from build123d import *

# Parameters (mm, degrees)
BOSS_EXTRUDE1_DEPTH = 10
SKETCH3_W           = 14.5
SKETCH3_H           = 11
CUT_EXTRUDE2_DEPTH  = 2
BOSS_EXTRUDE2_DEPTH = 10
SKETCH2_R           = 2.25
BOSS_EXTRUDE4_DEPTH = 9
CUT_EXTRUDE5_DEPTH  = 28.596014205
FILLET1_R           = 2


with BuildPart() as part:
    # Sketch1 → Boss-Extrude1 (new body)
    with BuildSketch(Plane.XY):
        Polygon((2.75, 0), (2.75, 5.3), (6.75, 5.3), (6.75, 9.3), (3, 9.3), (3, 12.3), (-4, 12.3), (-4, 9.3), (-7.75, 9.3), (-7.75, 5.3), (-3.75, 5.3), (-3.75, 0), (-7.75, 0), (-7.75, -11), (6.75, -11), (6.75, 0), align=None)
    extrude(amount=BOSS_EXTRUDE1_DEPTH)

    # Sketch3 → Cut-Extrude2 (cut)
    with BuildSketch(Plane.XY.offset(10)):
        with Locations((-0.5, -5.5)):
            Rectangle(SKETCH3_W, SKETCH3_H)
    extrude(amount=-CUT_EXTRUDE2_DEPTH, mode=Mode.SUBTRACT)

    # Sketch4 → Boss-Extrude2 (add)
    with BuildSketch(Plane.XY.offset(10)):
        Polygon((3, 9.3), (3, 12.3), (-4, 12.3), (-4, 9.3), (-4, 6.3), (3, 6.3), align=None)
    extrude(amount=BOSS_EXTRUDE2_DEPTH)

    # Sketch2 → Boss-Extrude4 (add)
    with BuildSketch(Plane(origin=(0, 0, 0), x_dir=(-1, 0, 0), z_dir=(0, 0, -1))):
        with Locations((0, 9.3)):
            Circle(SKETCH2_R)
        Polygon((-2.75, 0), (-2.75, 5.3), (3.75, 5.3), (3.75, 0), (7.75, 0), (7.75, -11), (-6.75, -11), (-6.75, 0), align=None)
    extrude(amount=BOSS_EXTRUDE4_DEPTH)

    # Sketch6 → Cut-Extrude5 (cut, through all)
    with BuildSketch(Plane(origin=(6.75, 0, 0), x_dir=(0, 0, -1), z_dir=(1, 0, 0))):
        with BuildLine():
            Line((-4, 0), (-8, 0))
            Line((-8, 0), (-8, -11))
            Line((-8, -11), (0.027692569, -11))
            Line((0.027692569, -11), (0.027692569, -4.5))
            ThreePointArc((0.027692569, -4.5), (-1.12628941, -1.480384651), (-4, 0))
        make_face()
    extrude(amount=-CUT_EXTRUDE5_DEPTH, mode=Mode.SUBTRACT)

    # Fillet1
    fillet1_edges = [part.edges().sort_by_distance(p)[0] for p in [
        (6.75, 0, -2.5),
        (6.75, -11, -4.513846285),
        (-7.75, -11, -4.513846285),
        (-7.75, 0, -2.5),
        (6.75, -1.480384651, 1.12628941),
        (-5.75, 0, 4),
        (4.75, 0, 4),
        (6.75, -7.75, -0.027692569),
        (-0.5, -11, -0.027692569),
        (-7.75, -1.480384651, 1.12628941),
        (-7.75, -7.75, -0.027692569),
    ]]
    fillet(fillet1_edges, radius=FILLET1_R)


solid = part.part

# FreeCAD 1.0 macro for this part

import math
import FreeCAD as App
import Part
import Sketcher
from FreeCAD import Vector


def edges_at(feature, points):
    """Names of the edges that pass closest to the given points."""
    edges = feature.Shape.Edges
    near = lambda p: min(range(len(edges)), key=lambda i: edges[i].distToShape(Part.Vertex(*p))[0])
    return sorted({f"Edge{near(p) + 1}" for p in points})

doc = App.newDocument("Part")
body = doc.addObject("PartDesign::Body", "Body")

# Sketch on XY plane
sketch1 = body.newObject("Sketcher::SketchObject", "Sketch")
sketch1.AttachmentSupport = (doc.getObject("XY_Plane"), [""])
sketch1.MapMode = "FlatFace"
sketch1.addGeometry(Part.LineSegment(Vector(2.8, 0, 0), Vector(2.8, 5.3, 0)), False)
sketch1.addGeometry(Part.LineSegment(Vector(2.8, 5.3, 0), Vector(6.8, 5.3, 0)), False)
sketch1.addGeometry(Part.LineSegment(Vector(6.8, 5.3, 0), Vector(6.8, 9.3, 0)), False)
sketch1.addGeometry(Part.LineSegment(Vector(6.8, 9.3, 0), Vector(3, 9.3, 0)), False)
sketch1.addGeometry(Part.LineSegment(Vector(3, 9.3, 0), Vector(3, 12.3, 0)), False)
sketch1.addGeometry(Part.LineSegment(Vector(3, 12.3, 0), Vector(-4, 12.3, 0)), False)
sketch1.addGeometry(Part.LineSegment(Vector(-4, 12.3, 0), Vector(-4, 9.3, 0)), False)
sketch1.addGeometry(Part.LineSegment(Vector(-4, 9.3, 0), Vector(-7.8, 9.3, 0)), False)
sketch1.addGeometry(Part.LineSegment(Vector(-7.8, 9.3, 0), Vector(-7.8, 5.3, 0)), False)
sketch1.addGeometry(Part.LineSegment(Vector(-7.8, 5.3, 0), Vector(-3.8, 5.3, 0)), False)
sketch1.addGeometry(Part.LineSegment(Vector(-3.8, 5.3, 0), Vector(-3.8, 0, 0)), False)
sketch1.addGeometry(Part.LineSegment(Vector(-3.8, 0, 0), Vector(-7.8, 0, 0)), False)
sketch1.addGeometry(Part.LineSegment(Vector(-7.8, 0, 0), Vector(-7.8, -11, 0)), False)
sketch1.addGeometry(Part.LineSegment(Vector(-7.8, -11, 0), Vector(6.8, -11, 0)), False)
sketch1.addGeometry(Part.LineSegment(Vector(6.8, -11, 0), Vector(6.8, 0, 0)), False)
sketch1.addGeometry(Part.LineSegment(Vector(6.8, 0, 0), Vector(2.8, 0, 0)), False)
sketch1.addConstraint(Sketcher.Constraint("Coincident", 0, 2, 1, 1))
sketch1.addConstraint(Sketcher.Constraint("Coincident", 1, 2, 2, 1))
sketch1.addConstraint(Sketcher.Constraint("Coincident", 2, 2, 3, 1))
sketch1.addConstraint(Sketcher.Constraint("Coincident", 3, 2, 4, 1))
sketch1.addConstraint(Sketcher.Constraint("Coincident", 4, 2, 5, 1))
sketch1.addConstraint(Sketcher.Constraint("Coincident", 5, 2, 6, 1))
sketch1.addConstraint(Sketcher.Constraint("Coincident", 6, 2, 7, 1))
sketch1.addConstraint(Sketcher.Constraint("Coincident", 7, 2, 8, 1))
sketch1.addConstraint(Sketcher.Constraint("Coincident", 8, 2, 9, 1))
sketch1.addConstraint(Sketcher.Constraint("Coincident", 9, 2, 10, 1))
sketch1.addConstraint(Sketcher.Constraint("Coincident", 10, 2, 11, 1))
sketch1.addConstraint(Sketcher.Constraint("Coincident", 11, 2, 12, 1))
sketch1.addConstraint(Sketcher.Constraint("Coincident", 12, 2, 13, 1))
sketch1.addConstraint(Sketcher.Constraint("Coincident", 13, 2, 14, 1))
sketch1.addConstraint(Sketcher.Constraint("Coincident", 14, 2, 15, 1))
sketch1.addConstraint(Sketcher.Constraint("Coincident", 15, 2, 0, 1))
sketch1.addConstraint(Sketcher.Constraint("Vertical", 0))
sketch1.addConstraint(Sketcher.Constraint("Horizontal", 1))
sketch1.addConstraint(Sketcher.Constraint("Vertical", 2))
sketch1.addConstraint(Sketcher.Constraint("Horizontal", 3))
sketch1.addConstraint(Sketcher.Constraint("Vertical", 4))
sketch1.addConstraint(Sketcher.Constraint("Horizontal", 5))
sketch1.addConstraint(Sketcher.Constraint("Vertical", 6))
sketch1.addConstraint(Sketcher.Constraint("Horizontal", 7))
sketch1.addConstraint(Sketcher.Constraint("Vertical", 8))
sketch1.addConstraint(Sketcher.Constraint("Horizontal", 9))
sketch1.addConstraint(Sketcher.Constraint("Vertical", 10))
sketch1.addConstraint(Sketcher.Constraint("Horizontal", 11))
sketch1.addConstraint(Sketcher.Constraint("Vertical", 12))
sketch1.addConstraint(Sketcher.Constraint("Horizontal", 13))
sketch1.addConstraint(Sketcher.Constraint("Vertical", 14))
sketch1.addConstraint(Sketcher.Constraint("Horizontal", 15))
sketch1.addConstraint(Sketcher.Constraint("PointOnObject", 10, 2, -1))
sketch1.addConstraint(Sketcher.Constraint("PointOnObject", 14, 2, -1))
sketch1.addConstraint(Sketcher.Constraint("Horizontal", 3, 2, 6, 2))
sketch1.addConstraint(Sketcher.Constraint("Horizontal", 1, 2, 8, 2))
sketch1.addConstraint(Sketcher.Constraint("Vertical", 8, 2, 11, 2))
sketch1.addConstraint(Sketcher.Constraint("Vertical", 2, 2, 13, 2))
sketch1.addConstraint(Sketcher.Constraint("Equal", 3, 7))
sketch1.addConstraint(Sketcher.Constraint("Equal", 1, 9))
sketch1.addConstraint(Sketcher.Constraint("Equal", 15, 2))
sketch1.addConstraint(Sketcher.Constraint("DistanceX", 1, 1, 1, 2, 4.0))
sketch1.addConstraint(Sketcher.Constraint("DistanceX", 5, 2, 5, 1, 7.0))
sketch1.addConstraint(Sketcher.Constraint("DistanceY", 4, 1, 4, 2, 3.0))
sketch1.addConstraint(Sketcher.Constraint("DistanceY", 12, 2, 12, 1, 11.0))
sketch1.addConstraint(Sketcher.Constraint("DistanceX", 13, 1, 13, 2, 14.5))
sketch1.addConstraint(Sketcher.Constraint("DistanceY", 0, 1, 0, 2, 5.3))
sketch1.addConstraint(Sketcher.Constraint("DistanceX", -1, 1, 3, 2, 3.0))
pad1 = body.newObject("PartDesign::Pad", "Pad")
pad1.Profile = sketch1
pad1.Length = 10

# Sketch on XY plane
sketch2 = body.newObject("Sketcher::SketchObject", "Sketch001")
sketch2.AttachmentSupport = (doc.getObject("XY_Plane"), [""])
sketch2.MapMode = "FlatFace"
sketch2.AttachmentOffset = App.Placement(Vector(0, 0, 10), App.Rotation())
sketch2.addGeometry(Part.LineSegment(Vector(-8, 0, 0), Vector(-8, -11, 0)), False)
sketch2.addGeometry(Part.LineSegment(Vector(-8, -11, 0), Vector(7, -11, 0)), False)
sketch2.addGeometry(Part.LineSegment(Vector(7, -11, 0), Vector(7, 0, 0)), False)
sketch2.addGeometry(Part.LineSegment(Vector(7, 0, 0), Vector(-8, 0, 0)), False)
sketch2.addConstraint(Sketcher.Constraint("Coincident", 0, 2, 1, 1))
sketch2.addConstraint(Sketcher.Constraint("Coincident", 1, 2, 2, 1))
sketch2.addConstraint(Sketcher.Constraint("Coincident", 2, 2, 3, 1))
sketch2.addConstraint(Sketcher.Constraint("Coincident", 3, 2, 0, 1))
sketch2.addConstraint(Sketcher.Constraint("Vertical", 0))
sketch2.addConstraint(Sketcher.Constraint("Horizontal", 1))
sketch2.addConstraint(Sketcher.Constraint("Vertical", 2))
sketch2.addConstraint(Sketcher.Constraint("Horizontal", 3))
sketch2.addConstraint(Sketcher.Constraint("PointOnObject", 2, 2, -1))
sketch2.addConstraint(Sketcher.Constraint("DistanceY", 0, 2, 0, 1, 11.0))
sketch2.addConstraint(Sketcher.Constraint("DistanceX", 1, 1, 1, 2, 14.5))
sketch2.addConstraint(Sketcher.Constraint("DistanceX", 0, 2, -1, 1, 7.75))
pocket1 = body.newObject("PartDesign::Pocket", "Pocket")
pocket1.Profile = sketch2
pocket1.Length = 2

# Sketch on XY plane
sketch3 = body.newObject("Sketcher::SketchObject", "Sketch002")
sketch3.AttachmentSupport = (doc.getObject("XY_Plane"), [""])
sketch3.MapMode = "FlatFace"
sketch3.AttachmentOffset = App.Placement(Vector(0, 0, 10), App.Rotation())
sketch3.addGeometry(Part.LineSegment(Vector(3, 12, 0), Vector(-4, 12, 0)), False)
sketch3.addGeometry(Part.LineSegment(Vector(-4, 12, 0), Vector(-4, 6, 0)), False)
sketch3.addGeometry(Part.LineSegment(Vector(-4, 6, 0), Vector(3, 6, 0)), False)
sketch3.addGeometry(Part.LineSegment(Vector(3, 6, 0), Vector(3, 12, 0)), False)
sketch3.addConstraint(Sketcher.Constraint("Coincident", 0, 2, 1, 1))
sketch3.addConstraint(Sketcher.Constraint("Coincident", 1, 2, 2, 1))
sketch3.addConstraint(Sketcher.Constraint("Coincident", 2, 2, 3, 1))
sketch3.addConstraint(Sketcher.Constraint("Coincident", 3, 2, 0, 1))
sketch3.addConstraint(Sketcher.Constraint("Horizontal", 0))
sketch3.addConstraint(Sketcher.Constraint("Vertical", 1))
sketch3.addConstraint(Sketcher.Constraint("Horizontal", 2))
sketch3.addConstraint(Sketcher.Constraint("Vertical", 3))
sketch3.addConstraint(Sketcher.Constraint("DistanceX", 0, 2, 0, 1, 7.0))
sketch3.addConstraint(Sketcher.Constraint("DistanceY", 1, 2, 1, 1, 6.0))
sketch3.addConstraint(Sketcher.Constraint("DistanceX", 0, 2, -1, 1, 4.0))
sketch3.addConstraint(Sketcher.Constraint("DistanceY", -1, 1, 0, 2, 12.3))
pad2 = body.newObject("PartDesign::Pad", "Pad001")
pad2.Profile = sketch3
pad2.Length = 10

# Sketch on XY plane
sketch4 = body.newObject("Sketcher::SketchObject", "Sketch003")
sketch4.AttachmentSupport = (doc.getObject("XY_Plane"), [""])
sketch4.MapMode = "FlatFace"
sketch4.addGeometry(Part.Circle(Vector(0, 9.3, 0), Vector(0, 0, 1), 2.2), False)
sketch4.addGeometry(Part.LineSegment(Vector(2.8, 5.3, 0), Vector(2.8, 0, 0)), False)
sketch4.addGeometry(Part.LineSegment(Vector(2.8, 0, 0), Vector(6.8, 0, 0)), False)
sketch4.addGeometry(Part.LineSegment(Vector(6.8, 0, 0), Vector(6.8, -11, 0)), False)
sketch4.addGeometry(Part.LineSegment(Vector(6.8, -11, 0), Vector(-7.8, -11, 0)), False)
sketch4.addGeometry(Part.LineSegment(Vector(-7.8, -11, 0), Vector(-7.8, 0, 0)), False)
sketch4.addGeometry(Part.LineSegment(Vector(-7.8, 0, 0), Vector(-3.8, 0, 0)), False)
sketch4.addGeometry(Part.LineSegment(Vector(-3.8, 0, 0), Vector(-3.8, 5.3, 0)), False)
sketch4.addGeometry(Part.LineSegment(Vector(-3.8, 5.3, 0), Vector(2.8, 5.3, 0)), False)
sketch4.addConstraint(Sketcher.Constraint("Coincident", 1, 2, 2, 1))
sketch4.addConstraint(Sketcher.Constraint("Coincident", 2, 2, 3, 1))
sketch4.addConstraint(Sketcher.Constraint("Coincident", 3, 2, 4, 1))
sketch4.addConstraint(Sketcher.Constraint("Coincident", 4, 2, 5, 1))
sketch4.addConstraint(Sketcher.Constraint("Coincident", 5, 2, 6, 1))
sketch4.addConstraint(Sketcher.Constraint("Coincident", 6, 2, 7, 1))
sketch4.addConstraint(Sketcher.Constraint("Coincident", 7, 2, 8, 1))
sketch4.addConstraint(Sketcher.Constraint("Coincident", 8, 2, 1, 1))
sketch4.addConstraint(Sketcher.Constraint("Vertical", 1))
sketch4.addConstraint(Sketcher.Constraint("Horizontal", 2))
sketch4.addConstraint(Sketcher.Constraint("Vertical", 3))
sketch4.addConstraint(Sketcher.Constraint("Horizontal", 4))
sketch4.addConstraint(Sketcher.Constraint("Vertical", 5))
sketch4.addConstraint(Sketcher.Constraint("Horizontal", 6))
sketch4.addConstraint(Sketcher.Constraint("Vertical", 7))
sketch4.addConstraint(Sketcher.Constraint("Horizontal", 8))
sketch4.addConstraint(Sketcher.Constraint("PointOnObject", 0, 3, -2))
sketch4.addConstraint(Sketcher.Constraint("PointOnObject", 1, 2, -1))
sketch4.addConstraint(Sketcher.Constraint("PointOnObject", 5, 2, -1))
sketch4.addConstraint(Sketcher.Constraint("Equal", 2, 6))
sketch4.addConstraint(Sketcher.Constraint("Diameter", 0, 4.5))
sketch4.addConstraint(Sketcher.Constraint("DistanceX", 2, 1, 2, 2, 4.0))
sketch4.addConstraint(Sketcher.Constraint("DistanceY", 3, 2, 3, 1, 11.0))
sketch4.addConstraint(Sketcher.Constraint("DistanceX", 4, 2, 4, 1, 14.5))
sketch4.addConstraint(Sketcher.Constraint("DistanceY", 1, 2, 1, 1, 5.3))
sketch4.addConstraint(Sketcher.Constraint("DistanceY", 7, 2, 0, 3, 4.0))
sketch4.addConstraint(Sketcher.Constraint("DistanceX", -1, 1, 1, 2, 2.75))
pad3 = body.newObject("PartDesign::Pad", "Pad002")
pad3.Profile = sketch4
pad3.Length = 9
pad3.Reversed = True

# Sketch on YZ plane
sketch5 = body.newObject("Sketcher::SketchObject", "Sketch004")
sketch5.AttachmentSupport = (doc.getObject("YZ_Plane"), [""])
sketch5.MapMode = "FlatFace"
sketch5.AttachmentOffset = App.Placement(Vector(0, 0, 6.75), App.Rotation())
sketch5.addGeometry(Part.LineSegment(Vector(0, 4, 0), Vector(0, 8, 0)), False)
sketch5.addGeometry(Part.LineSegment(Vector(0, 8, 0), Vector(-11, 8, 0)), False)
sketch5.addGeometry(Part.LineSegment(Vector(-11, 8, 0), Vector(-11, 0, 0)), False)
sketch5.addGeometry(Part.LineSegment(Vector(-11, 0, 0), Vector(-4.5, 0, 0)), False)
sketch5.addGeometry(Part.ArcOfCircle(Part.Circle(Vector(-4.5, 4.5, 0), Vector(0, 0, 1), 4.5), math.radians(-90), math.radians(-6)), False)
sketch5.addConstraint(Sketcher.Constraint("Coincident", 0, 2, 1, 1))
sketch5.addConstraint(Sketcher.Constraint("Coincident", 1, 2, 2, 1))
sketch5.addConstraint(Sketcher.Constraint("Coincident", 2, 2, 3, 1))
sketch5.addConstraint(Sketcher.Constraint("Tangent", 3, 2, 4, 1))
sketch5.addConstraint(Sketcher.Constraint("Coincident", 4, 2, 0, 1))
sketch5.addConstraint(Sketcher.Constraint("Vertical", 0))
sketch5.addConstraint(Sketcher.Constraint("Horizontal", 1))
sketch5.addConstraint(Sketcher.Constraint("Vertical", 2))
sketch5.addConstraint(Sketcher.Constraint("Horizontal", 3))
sketch5.addConstraint(Sketcher.Constraint("PointOnObject", 0, 2, -2))
sketch5.addConstraint(Sketcher.Constraint("DistanceX", 1, 2, 1, 1, 11.0))
sketch5.addConstraint(Sketcher.Constraint("DistanceY", 0, 1, 0, 2, 4.0))
sketch5.addConstraint(Sketcher.Constraint("DistanceX", 3, 1, 3, 2, 6.5))
sketch5.addConstraint(Sketcher.Constraint("DistanceY", -1, 1, 0, 2, 8.0))
sketch5.addConstraint(Sketcher.Constraint("DistanceY", -1, 1, 4, 3, 4.5))
pocket2 = body.newObject("PartDesign::Pocket", "Pocket001")
pocket2.Profile = sketch5
pocket2.Type = "ThroughAll"
doc.recompute()

fillet = body.newObject("PartDesign::Fillet", "Fillet")
fillet.Base = (pocket2, edges_at(pocket2, [
    (6.75, 0, -2.5),
    (6.75, -11, -4.514),
    (-7.75, -11, -4.514),
    (-7.75, 0, -2.5),
    (6.75, -1.48, 1.126),
    (-5.75, 0, 4),
    (4.75, 0, 4),
    (6.75, -7.75, -0.028),
    (-0.5, -11, -0.028),
    (-7.75, -1.48, 1.126),
    (-7.75, -7.75, -0.028),
]))
fillet.Radius = 2

doc.recompute()
